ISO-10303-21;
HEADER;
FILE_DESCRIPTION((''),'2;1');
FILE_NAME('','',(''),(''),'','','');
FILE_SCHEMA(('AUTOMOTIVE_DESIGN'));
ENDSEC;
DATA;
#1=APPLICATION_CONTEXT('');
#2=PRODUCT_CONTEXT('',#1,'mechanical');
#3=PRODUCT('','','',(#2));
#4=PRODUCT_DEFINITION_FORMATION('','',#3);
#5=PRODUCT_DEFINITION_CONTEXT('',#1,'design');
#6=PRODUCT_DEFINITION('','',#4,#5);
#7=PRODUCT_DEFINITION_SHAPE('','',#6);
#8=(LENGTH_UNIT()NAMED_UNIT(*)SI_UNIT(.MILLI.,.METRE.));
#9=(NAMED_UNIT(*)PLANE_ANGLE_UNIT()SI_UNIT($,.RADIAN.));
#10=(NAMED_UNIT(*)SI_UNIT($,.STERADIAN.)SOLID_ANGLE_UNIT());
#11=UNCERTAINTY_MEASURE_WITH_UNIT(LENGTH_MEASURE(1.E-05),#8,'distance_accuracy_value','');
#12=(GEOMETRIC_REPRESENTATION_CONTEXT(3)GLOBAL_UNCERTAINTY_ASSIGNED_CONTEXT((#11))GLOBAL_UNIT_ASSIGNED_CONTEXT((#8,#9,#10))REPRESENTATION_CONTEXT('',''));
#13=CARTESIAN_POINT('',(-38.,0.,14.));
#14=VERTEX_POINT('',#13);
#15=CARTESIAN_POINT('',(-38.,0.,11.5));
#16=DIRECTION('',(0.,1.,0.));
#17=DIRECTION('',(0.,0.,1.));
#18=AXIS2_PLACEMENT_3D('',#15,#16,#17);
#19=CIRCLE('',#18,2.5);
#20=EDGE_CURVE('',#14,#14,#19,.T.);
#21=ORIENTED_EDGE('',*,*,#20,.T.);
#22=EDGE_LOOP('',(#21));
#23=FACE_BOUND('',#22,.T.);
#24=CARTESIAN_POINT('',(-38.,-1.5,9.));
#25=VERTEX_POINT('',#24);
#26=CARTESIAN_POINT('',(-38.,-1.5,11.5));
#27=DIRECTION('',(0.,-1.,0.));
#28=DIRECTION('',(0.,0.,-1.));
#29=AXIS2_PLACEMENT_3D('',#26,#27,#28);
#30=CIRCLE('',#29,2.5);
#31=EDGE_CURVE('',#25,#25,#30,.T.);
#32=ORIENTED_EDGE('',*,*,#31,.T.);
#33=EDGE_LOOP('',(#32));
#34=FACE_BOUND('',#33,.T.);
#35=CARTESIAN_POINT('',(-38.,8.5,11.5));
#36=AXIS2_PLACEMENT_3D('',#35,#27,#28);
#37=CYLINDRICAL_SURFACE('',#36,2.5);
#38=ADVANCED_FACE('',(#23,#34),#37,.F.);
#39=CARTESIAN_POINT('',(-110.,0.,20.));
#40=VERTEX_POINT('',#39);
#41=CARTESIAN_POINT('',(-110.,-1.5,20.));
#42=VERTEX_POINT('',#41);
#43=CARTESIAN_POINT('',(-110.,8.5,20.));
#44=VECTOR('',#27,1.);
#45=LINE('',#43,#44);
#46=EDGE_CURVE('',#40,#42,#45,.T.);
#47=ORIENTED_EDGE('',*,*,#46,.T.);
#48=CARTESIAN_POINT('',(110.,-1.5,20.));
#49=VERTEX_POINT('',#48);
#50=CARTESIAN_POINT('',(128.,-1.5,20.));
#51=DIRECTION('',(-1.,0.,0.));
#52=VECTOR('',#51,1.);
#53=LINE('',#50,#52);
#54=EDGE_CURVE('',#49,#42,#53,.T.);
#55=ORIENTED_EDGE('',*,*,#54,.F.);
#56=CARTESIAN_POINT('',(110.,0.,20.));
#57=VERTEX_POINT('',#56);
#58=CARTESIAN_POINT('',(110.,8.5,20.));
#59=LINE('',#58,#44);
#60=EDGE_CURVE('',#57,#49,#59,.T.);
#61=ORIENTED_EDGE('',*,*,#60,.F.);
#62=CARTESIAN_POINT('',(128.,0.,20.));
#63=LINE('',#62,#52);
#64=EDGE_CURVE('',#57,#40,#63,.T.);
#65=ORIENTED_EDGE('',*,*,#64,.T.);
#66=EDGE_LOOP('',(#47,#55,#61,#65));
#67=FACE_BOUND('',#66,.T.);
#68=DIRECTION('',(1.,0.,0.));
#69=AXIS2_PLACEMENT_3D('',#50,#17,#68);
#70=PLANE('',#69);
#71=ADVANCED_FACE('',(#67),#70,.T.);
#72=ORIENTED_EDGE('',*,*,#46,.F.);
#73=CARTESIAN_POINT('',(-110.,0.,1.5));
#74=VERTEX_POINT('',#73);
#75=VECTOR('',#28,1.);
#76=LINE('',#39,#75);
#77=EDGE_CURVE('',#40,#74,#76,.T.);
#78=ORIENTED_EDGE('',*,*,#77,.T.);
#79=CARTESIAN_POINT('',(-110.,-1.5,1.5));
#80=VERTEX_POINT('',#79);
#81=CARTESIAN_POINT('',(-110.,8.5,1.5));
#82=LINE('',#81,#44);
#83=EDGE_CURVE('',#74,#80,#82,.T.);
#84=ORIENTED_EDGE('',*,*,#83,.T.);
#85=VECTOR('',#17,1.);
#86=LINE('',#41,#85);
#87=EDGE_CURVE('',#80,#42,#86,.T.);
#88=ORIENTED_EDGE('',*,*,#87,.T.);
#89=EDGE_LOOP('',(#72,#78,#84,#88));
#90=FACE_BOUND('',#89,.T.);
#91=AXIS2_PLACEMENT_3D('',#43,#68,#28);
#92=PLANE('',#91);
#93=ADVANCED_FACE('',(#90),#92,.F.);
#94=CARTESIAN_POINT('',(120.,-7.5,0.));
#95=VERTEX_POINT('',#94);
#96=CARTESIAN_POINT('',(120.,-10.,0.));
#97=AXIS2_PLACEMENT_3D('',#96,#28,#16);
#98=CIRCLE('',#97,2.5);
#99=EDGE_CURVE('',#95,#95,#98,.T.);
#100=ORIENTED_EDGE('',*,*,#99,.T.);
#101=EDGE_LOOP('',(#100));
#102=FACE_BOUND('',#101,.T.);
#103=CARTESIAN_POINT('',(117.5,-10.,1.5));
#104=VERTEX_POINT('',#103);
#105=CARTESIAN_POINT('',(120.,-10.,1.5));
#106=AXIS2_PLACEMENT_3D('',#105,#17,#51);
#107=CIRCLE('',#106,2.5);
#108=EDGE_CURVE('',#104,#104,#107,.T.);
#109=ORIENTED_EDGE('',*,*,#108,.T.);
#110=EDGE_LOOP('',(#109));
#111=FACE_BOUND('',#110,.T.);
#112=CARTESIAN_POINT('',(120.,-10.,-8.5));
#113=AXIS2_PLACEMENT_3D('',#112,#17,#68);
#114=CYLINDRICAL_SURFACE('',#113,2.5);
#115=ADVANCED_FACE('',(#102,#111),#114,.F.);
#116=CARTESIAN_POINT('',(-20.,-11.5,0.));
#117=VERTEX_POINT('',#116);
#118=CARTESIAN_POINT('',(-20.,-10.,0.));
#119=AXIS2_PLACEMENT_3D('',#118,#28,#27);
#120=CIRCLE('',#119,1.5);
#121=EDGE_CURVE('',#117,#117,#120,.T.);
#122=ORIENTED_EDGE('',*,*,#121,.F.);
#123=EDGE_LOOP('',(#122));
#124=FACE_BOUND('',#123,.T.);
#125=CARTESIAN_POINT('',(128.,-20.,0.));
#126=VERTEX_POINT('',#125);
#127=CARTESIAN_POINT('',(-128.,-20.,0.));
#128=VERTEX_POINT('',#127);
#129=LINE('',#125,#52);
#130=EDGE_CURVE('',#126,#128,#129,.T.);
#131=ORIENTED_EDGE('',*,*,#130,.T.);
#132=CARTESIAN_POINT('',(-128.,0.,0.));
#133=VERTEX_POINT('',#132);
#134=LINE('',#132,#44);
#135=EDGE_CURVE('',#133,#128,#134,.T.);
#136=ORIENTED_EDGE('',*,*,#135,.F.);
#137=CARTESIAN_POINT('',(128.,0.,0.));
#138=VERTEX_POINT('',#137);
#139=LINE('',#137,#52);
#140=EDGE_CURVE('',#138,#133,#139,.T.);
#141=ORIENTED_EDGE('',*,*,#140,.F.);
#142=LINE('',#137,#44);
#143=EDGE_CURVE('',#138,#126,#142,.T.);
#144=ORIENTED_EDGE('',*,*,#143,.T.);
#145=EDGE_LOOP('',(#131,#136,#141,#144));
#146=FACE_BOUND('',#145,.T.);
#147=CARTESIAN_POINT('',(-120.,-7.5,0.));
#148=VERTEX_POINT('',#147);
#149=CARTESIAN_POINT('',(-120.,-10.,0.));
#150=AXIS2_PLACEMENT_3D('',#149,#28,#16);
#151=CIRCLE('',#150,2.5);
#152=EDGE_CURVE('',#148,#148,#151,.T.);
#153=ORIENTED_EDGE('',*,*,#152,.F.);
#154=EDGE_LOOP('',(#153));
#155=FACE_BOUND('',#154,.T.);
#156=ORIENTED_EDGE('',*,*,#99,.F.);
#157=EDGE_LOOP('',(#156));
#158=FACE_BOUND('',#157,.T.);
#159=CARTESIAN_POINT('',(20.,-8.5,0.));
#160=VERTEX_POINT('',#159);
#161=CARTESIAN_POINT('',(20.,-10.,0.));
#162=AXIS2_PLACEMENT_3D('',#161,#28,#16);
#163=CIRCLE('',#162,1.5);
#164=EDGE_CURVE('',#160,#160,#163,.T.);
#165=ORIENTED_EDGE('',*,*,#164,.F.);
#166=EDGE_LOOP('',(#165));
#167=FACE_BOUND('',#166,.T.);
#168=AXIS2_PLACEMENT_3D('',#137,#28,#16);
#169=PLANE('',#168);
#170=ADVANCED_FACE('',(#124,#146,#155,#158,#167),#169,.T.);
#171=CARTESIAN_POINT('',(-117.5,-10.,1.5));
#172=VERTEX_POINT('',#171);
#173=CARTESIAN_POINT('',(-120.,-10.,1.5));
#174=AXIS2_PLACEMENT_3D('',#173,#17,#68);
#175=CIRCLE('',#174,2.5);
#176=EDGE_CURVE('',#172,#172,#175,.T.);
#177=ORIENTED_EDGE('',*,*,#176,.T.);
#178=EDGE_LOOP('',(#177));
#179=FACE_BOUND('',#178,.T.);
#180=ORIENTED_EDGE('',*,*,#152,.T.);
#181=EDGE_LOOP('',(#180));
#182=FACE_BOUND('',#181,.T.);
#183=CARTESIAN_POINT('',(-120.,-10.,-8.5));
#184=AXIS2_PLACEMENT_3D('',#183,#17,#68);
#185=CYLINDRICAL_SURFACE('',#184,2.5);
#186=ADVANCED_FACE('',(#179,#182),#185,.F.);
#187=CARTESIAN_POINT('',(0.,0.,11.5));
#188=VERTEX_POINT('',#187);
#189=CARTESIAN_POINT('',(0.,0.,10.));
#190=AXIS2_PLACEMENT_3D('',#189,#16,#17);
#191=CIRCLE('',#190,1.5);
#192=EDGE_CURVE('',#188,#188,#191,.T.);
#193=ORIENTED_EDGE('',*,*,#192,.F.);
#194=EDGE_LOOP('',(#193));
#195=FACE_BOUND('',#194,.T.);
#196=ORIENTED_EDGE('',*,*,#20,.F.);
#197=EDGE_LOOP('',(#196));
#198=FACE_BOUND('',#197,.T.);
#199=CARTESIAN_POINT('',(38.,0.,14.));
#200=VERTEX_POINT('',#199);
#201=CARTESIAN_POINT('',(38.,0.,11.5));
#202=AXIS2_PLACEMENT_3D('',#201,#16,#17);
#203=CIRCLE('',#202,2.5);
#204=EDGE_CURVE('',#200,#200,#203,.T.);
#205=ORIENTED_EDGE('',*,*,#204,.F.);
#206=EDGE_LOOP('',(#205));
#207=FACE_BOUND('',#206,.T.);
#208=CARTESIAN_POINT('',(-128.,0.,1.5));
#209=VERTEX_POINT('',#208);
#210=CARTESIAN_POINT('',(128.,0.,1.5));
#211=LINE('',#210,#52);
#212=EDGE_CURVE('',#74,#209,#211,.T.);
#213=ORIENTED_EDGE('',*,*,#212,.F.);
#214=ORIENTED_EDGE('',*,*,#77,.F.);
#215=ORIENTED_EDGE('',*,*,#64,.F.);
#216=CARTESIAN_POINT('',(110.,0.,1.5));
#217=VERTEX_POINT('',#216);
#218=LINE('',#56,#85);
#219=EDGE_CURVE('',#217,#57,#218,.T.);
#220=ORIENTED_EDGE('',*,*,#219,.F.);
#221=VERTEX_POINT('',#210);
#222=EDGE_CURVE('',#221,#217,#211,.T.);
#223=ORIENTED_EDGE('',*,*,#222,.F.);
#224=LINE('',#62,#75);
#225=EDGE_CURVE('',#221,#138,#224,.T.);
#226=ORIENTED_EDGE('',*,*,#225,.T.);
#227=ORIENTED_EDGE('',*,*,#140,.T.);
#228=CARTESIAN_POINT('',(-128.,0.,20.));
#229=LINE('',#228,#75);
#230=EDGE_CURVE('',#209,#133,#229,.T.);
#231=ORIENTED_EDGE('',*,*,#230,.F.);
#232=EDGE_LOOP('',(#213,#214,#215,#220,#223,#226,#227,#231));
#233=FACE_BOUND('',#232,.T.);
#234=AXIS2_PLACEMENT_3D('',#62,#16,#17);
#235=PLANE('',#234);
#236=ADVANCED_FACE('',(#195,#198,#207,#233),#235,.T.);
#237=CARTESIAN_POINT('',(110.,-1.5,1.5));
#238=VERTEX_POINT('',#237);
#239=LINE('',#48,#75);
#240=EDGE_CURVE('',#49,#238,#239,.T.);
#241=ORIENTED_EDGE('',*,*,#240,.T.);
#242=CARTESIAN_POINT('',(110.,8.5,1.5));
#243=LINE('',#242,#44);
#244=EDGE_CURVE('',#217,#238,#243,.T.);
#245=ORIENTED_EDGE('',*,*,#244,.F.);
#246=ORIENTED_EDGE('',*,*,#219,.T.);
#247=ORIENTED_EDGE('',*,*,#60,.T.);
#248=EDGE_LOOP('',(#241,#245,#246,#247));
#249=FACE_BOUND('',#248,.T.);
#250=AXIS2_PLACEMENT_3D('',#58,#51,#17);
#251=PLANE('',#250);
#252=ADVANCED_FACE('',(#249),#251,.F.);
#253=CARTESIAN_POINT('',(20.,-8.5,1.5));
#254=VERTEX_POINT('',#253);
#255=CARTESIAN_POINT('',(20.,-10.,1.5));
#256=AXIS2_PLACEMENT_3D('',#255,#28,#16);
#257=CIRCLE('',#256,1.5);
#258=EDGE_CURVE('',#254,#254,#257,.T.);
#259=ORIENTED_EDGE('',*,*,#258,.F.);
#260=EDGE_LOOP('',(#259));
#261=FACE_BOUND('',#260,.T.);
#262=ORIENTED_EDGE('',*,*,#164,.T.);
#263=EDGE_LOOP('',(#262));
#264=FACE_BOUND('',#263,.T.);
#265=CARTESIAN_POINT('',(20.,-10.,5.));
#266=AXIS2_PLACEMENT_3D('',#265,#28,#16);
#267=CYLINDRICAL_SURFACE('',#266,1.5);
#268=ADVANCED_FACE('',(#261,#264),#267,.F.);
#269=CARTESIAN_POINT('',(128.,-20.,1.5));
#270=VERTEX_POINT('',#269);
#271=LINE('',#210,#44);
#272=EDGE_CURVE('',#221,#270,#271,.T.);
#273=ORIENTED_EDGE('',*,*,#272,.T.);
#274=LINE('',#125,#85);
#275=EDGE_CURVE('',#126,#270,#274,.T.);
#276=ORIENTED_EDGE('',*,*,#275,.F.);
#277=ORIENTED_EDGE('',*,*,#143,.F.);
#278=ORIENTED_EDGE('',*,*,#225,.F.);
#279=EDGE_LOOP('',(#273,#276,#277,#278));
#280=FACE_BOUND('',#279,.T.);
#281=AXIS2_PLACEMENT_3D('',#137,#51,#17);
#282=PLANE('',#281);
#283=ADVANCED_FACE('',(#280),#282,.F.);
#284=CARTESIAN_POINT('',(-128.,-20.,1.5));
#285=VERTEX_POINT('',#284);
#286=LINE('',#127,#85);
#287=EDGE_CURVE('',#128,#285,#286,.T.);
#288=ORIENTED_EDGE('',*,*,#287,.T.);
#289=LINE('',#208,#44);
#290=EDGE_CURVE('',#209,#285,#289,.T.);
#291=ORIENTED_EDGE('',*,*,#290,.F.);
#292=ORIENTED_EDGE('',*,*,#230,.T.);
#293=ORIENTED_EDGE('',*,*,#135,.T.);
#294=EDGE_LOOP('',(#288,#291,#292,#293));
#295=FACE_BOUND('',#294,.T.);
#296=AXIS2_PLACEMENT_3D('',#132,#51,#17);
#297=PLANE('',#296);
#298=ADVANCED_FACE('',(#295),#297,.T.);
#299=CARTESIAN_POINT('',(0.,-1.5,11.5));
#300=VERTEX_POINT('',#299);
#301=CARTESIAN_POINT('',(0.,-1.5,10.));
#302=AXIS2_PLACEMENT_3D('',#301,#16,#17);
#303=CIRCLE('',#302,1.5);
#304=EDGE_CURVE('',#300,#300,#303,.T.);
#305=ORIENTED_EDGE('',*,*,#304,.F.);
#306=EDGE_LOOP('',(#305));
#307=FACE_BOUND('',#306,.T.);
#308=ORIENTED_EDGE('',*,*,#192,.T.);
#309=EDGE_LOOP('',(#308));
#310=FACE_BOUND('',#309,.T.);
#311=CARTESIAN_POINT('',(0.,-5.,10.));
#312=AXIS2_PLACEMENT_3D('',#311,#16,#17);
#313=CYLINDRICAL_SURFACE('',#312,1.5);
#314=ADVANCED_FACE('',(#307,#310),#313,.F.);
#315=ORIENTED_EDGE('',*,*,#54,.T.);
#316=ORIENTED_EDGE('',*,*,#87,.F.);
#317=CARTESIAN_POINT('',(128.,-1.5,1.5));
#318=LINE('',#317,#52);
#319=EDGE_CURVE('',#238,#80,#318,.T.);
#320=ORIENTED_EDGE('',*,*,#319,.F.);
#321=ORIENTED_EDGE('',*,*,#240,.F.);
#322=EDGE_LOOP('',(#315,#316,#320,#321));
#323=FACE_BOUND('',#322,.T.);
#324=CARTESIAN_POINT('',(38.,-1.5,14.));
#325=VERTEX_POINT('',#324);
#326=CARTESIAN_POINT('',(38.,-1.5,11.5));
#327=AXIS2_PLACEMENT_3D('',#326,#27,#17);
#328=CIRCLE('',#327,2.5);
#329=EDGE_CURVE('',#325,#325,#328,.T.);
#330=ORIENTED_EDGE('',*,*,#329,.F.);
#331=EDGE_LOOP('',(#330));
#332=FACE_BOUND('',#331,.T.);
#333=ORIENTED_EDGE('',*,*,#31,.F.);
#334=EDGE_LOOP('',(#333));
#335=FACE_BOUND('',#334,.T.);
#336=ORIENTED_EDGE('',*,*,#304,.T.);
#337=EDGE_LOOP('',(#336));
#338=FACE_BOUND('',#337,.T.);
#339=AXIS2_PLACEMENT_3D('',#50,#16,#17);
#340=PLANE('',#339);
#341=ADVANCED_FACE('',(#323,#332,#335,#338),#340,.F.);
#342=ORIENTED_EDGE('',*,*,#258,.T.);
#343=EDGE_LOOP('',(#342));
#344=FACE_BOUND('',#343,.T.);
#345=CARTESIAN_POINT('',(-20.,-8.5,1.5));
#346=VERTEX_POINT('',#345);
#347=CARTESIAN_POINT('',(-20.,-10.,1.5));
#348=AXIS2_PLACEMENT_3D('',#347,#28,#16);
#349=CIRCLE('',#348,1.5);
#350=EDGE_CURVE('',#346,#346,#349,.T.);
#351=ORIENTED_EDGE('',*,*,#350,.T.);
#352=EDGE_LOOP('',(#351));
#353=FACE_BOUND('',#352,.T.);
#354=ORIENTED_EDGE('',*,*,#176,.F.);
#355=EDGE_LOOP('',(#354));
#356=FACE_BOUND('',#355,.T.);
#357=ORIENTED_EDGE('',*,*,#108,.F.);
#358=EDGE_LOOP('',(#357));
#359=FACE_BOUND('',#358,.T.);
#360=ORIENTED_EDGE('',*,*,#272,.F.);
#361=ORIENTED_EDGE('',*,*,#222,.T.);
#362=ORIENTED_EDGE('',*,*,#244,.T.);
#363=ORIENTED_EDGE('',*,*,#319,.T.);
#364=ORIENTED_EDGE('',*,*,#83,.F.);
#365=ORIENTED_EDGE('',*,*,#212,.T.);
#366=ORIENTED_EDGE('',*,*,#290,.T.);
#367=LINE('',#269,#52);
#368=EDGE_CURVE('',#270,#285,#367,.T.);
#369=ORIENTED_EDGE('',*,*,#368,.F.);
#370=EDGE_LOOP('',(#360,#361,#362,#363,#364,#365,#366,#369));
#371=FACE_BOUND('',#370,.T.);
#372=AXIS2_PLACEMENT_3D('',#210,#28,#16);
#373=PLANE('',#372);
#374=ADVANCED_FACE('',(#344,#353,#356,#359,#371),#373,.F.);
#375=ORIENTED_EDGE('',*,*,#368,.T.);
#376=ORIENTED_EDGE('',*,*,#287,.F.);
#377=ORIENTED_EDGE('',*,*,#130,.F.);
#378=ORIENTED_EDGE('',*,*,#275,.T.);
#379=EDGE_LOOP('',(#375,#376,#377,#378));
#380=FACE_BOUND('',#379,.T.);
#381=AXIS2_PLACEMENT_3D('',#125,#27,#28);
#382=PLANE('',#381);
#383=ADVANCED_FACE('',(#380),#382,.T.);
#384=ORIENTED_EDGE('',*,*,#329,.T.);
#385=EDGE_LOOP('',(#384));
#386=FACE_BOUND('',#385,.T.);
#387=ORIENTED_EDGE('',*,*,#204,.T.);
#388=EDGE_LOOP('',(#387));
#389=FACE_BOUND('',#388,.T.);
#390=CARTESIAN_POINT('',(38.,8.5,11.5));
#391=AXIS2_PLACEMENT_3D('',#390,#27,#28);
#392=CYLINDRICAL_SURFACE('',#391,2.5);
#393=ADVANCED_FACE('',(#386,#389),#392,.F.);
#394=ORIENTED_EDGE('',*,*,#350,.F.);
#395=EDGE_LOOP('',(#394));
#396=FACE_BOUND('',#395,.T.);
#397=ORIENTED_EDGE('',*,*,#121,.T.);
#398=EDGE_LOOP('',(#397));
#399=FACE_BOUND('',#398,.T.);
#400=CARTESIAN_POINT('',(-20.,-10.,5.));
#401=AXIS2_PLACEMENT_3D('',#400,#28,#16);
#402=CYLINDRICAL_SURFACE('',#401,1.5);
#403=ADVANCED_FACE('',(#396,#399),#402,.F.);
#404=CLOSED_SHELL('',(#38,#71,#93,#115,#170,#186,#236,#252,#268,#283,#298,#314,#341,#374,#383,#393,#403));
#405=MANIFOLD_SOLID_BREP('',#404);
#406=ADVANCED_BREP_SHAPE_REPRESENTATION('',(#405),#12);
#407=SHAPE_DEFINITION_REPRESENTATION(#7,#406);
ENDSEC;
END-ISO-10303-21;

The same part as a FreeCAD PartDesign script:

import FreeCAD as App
import Part
import Sketcher
from FreeCAD import Vector
Q = App.Units.Quantity


def add_polygon(sketch, points):
    """Adds a closed chain of lines whose ends are joined by coincident constraints."""
    first, n = sketch.GeometryCount, len(points)
    for a, b in zip(points, points[1:] + points[:1]):
        sketch.addGeometry(Part.LineSegment(App.Vector(*a, 0), App.Vector(*b, 0)), False)
    for i in range(n):
        sketch.addConstraint(Sketcher.Constraint("Coincident", first + i, 2, first + (i + 1) % n, 1))

doc = App.newDocument("Part")
body = doc.addObject("PartDesign::Body", "Body")

# Sketch on YZ plane
sketch1 = body.newObject("Sketcher::SketchObject", "Sketch")
sketch1.AttachmentSupport = (doc.getObject("YZ_Plane"), [""])
sketch1.MapMode = "FlatFace"
add_polygon(sketch1, [(0, 0), (0, 20), (-1.5, 20), (-1.5, 1.5), (-20, 1.5), (-20, 0)])  # lines 0-5
sketch1.addConstraint(Sketcher.Constraint("Vertical", 0))
sketch1.addConstraint(Sketcher.Constraint("Horizontal", 1))
sketch1.addConstraint(Sketcher.Constraint("Vertical", 2))
sketch1.addConstraint(Sketcher.Constraint("Horizontal", 3))
sketch1.addConstraint(Sketcher.Constraint("Vertical", 4))
sketch1.addConstraint(Sketcher.Constraint("Horizontal", 5))
sketch1.addConstraint(Sketcher.Constraint("Coincident", 5, 2, -1, 1))
sketch1.addConstraint(Sketcher.Constraint("Equal", 5, 0))
sketch1.addConstraint(Sketcher.Constraint("Equal", 3, 2))
sketch1.addConstraint(Sketcher.Constraint("DistanceX", 5, 1, 5, 2, Q("20 mm")))
sketch1.addConstraint(Sketcher.Constraint("DistanceX", 1, 2, 1, 1, Q("1.5 mm")))
pad1 = body.newObject("PartDesign::Pad", "Pad")
pad1.Profile = sketch1
pad1.Length = 256
pad1.Midplane = True

# Sketch on XY plane
sketch2 = body.newObject("Sketcher::SketchObject", "Sketch001")
sketch2.AttachmentSupport = (doc.getObject("XY_Plane"), [""])
sketch2.MapMode = "FlatFace"
sketch2.AttachmentOffset = App.Placement(Vector(0, 0, 1.5), App.Rotation())
sketch2.addGeometry(Part.Circle(Vector(-120, -10, 0), Vector(0, 0, 1), 2.5), False)
sketch2.addGeometry(Part.Circle(Vector(120, -10, 0), Vector(0, 0, 1), 2.5), False)
sketch2.addConstraint(Sketcher.Constraint("Equal", 0, 1))
sketch2.addConstraint(Sketcher.Constraint("Symmetric", 0, 3, 1, 3, -2))
sketch2.addConstraint(Sketcher.Constraint("Diameter", 0, Q("5 mm")))
sketch2.addConstraint(Sketcher.Constraint("DistanceX", 0, 3, -1, 1, Q("120 mm")))
sketch2.addConstraint(Sketcher.Constraint("DistanceY", 0, 3, -1, 1, Q("10 mm")))
pocket1 = body.newObject("PartDesign::Pocket", "Pocket")
pocket1.Profile = sketch2
pocket1.Length = 10

# Sketch on XZ plane
sketch3 = body.newObject("Sketcher::SketchObject", "Sketch002")
sketch3.AttachmentSupport = (doc.getObject("XZ_Plane"), [""])
sketch3.MapMode = "FlatFace"
sketch3.AttachmentOffset = App.Placement(Vector(0, 0, 1.5), App.Rotation())
sketch3.addGeometry(Part.Circle(Vector(-38, 11.5, 0), Vector(0, 0, 1), 2.5), False)  # 0
sketch3.addGeometry(Part.Circle(Vector(38, 11.5, 0), Vector(0, 0, 1), 2.5), False)  # 1
add_polygon(sketch3, [(-128, 20), (-128, 1.5), (-110, 1.5), (-110, 20)])  # lines 2-5
add_polygon(sketch3, [(110, 20), (110, 1.5), (128, 1.5), (128, 20)])  # lines 6-9
sketch3.addConstraint(Sketcher.Constraint("Vertical", 2))
sketch3.addConstraint(Sketcher.Constraint("Horizontal", 3))
sketch3.addConstraint(Sketcher.Constraint("Vertical", 4))
sketch3.addConstraint(Sketcher.Constraint("Horizontal", 5))
sketch3.addConstraint(Sketcher.Constraint("Vertical", 6))
sketch3.addConstraint(Sketcher.Constraint("Horizontal", 7))
sketch3.addConstraint(Sketcher.Constraint("Vertical", 8))
sketch3.addConstraint(Sketcher.Constraint("Horizontal", 9))
sketch3.addConstraint(Sketcher.Constraint("Equal", 0, 1))
sketch3.addConstraint(Sketcher.Constraint("Symmetric", 0, 3, 1, 3, -2))
sketch3.addConstraint(Sketcher.Constraint("Symmetric", 3, 2, 6, 2, -2))
sketch3.addConstraint(Sketcher.Constraint("Symmetric", 5, 2, 8, 2, -2))
sketch3.addConstraint(Sketcher.Constraint("Diameter", 0, Q("5 mm")))
sketch3.addConstraint(Sketcher.Constraint("DistanceX", 3, 1, 3, 2, Q("18 mm")))
sketch3.addConstraint(Sketcher.Constraint("DistanceY", 2, 2, 2, 1, Q("18.5 mm")))
sketch3.addConstraint(Sketcher.Constraint("DistanceX", 0, 3, -1, 1, Q("38 mm")))
sketch3.addConstraint(Sketcher.Constraint("DistanceX", 2, 2, -1, 1, Q("128 mm")))
sketch3.addConstraint(Sketcher.Constraint("DistanceY", -1, 1, 4, 2, Q("20 mm")))
sketch3.addConstraint(Sketcher.Constraint("DistanceY", 2, 2, 0, 3, Q("10 mm")))
pocket2 = body.newObject("PartDesign::Pocket", "Pocket001")
pocket2.Profile = sketch3
pocket2.Length = 10

# Sketch on XZ plane
sketch4 = body.newObject("Sketcher::SketchObject", "Sketch003")
sketch4.AttachmentSupport = (doc.getObject("XZ_Plane"), [""])
sketch4.MapMode = "FlatFace"
sketch4.addGeometry(Part.Circle(Vector(0, 10, 0), Vector(0, 0, 1), 1.5), False)
sketch4.addConstraint(Sketcher.Constraint("PointOnObject", 0, 3, -2))
sketch4.addConstraint(Sketcher.Constraint("Diameter", 0, Q("3 mm")))
sketch4.addConstraint(Sketcher.Constraint("DistanceY", -1, 1, 0, 3, Q("10 mm")))
pocket3 = body.newObject("PartDesign::Pocket", "Pocket002")
pocket3.Profile = sketch4
pocket3.Length = 5
pocket3.Reversed = True

# Sketch on XY plane
sketch5 = body.newObject("Sketcher::SketchObject", "Sketch004")
sketch5.AttachmentSupport = (doc.getObject("XY_Plane"), [""])
sketch5.MapMode = "FlatFace"
sketch5.addGeometry(Part.Circle(Vector(20, -10, 0), Vector(0, 0, 1), 1.5), False)
sketch5.addGeometry(Part.Circle(Vector(-20, -10, 0), Vector(0, 0, 1), 1.5), False)
sketch5.addConstraint(Sketcher.Constraint("Equal", 0, 1))
sketch5.addConstraint(Sketcher.Constraint("Symmetric", 0, 3, 1, 3, -2))
sketch5.addConstraint(Sketcher.Constraint("Diameter", 0, Q("3 mm")))
sketch5.addConstraint(Sketcher.Constraint("DistanceX", -1, 1, 0, 3, Q("20 mm")))
sketch5.addConstraint(Sketcher.Constraint("DistanceY", 0, 3, -1, 1, Q("10 mm")))
pocket4 = body.newObject("PartDesign::Pocket", "Pocket003")
pocket4.Profile = sketch5
pocket4.Length = 5
pocket4.Reversed = True

doc.recompute()
